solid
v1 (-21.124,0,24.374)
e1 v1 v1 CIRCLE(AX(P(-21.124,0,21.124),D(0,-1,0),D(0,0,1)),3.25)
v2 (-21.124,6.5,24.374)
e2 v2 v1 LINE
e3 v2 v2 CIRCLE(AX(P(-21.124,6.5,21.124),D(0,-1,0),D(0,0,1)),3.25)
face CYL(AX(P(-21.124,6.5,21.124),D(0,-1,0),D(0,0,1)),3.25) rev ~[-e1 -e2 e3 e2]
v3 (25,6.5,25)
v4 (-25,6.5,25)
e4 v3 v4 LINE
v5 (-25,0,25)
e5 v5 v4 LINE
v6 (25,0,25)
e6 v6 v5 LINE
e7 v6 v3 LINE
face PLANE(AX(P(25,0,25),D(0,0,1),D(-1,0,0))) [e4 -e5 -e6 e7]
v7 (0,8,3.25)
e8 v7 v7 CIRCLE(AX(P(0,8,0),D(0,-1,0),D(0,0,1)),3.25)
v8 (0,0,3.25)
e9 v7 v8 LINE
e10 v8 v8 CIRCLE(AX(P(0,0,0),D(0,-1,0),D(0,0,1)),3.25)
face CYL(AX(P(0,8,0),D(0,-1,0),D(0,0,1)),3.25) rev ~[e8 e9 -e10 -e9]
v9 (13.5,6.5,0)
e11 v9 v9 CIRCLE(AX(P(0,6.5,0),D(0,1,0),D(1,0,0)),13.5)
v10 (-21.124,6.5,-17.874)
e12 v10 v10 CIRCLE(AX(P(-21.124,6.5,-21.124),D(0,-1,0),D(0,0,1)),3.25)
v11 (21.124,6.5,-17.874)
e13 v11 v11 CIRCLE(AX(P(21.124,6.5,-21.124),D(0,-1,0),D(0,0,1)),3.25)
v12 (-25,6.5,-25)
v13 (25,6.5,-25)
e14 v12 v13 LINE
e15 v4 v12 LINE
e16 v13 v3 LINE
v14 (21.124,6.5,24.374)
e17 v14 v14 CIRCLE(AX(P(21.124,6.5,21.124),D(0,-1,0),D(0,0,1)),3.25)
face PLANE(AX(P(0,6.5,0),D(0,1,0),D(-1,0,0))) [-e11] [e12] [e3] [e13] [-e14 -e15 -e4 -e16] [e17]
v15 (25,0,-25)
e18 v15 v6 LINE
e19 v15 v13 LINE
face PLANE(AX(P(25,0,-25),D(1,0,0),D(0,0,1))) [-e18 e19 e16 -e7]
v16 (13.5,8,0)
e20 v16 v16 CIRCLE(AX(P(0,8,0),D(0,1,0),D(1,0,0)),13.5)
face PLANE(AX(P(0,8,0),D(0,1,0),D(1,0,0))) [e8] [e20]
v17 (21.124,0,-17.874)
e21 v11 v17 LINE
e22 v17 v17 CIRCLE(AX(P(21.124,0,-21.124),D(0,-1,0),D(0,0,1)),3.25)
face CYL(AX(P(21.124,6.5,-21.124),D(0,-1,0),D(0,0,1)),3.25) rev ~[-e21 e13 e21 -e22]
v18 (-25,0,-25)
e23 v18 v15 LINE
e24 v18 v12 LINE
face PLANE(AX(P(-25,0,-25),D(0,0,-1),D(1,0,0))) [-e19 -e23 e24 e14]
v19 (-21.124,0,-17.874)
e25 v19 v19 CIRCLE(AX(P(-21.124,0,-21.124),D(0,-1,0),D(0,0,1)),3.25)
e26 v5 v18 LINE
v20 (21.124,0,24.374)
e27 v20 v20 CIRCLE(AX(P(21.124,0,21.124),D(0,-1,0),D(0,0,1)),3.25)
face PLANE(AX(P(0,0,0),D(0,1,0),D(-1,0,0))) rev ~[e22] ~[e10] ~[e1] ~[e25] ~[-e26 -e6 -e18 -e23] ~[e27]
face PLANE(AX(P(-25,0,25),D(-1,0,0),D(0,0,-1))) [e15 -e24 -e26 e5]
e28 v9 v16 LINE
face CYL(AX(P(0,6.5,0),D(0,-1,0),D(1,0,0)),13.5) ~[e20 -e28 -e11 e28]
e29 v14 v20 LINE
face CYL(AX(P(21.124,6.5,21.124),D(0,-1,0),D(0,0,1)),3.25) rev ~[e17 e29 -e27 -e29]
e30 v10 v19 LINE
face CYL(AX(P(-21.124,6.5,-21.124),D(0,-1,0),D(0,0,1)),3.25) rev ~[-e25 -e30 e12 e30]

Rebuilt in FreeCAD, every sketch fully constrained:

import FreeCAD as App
import Part
import Sketcher
from FreeCAD import Vector

doc = App.newDocument("Part")
params = doc.addObject("Spreadsheet::Sheet", "Params")
for row, (alias, value) in enumerate([
    ("sketch1_width", "50 mm"),
    ("pad1_length", "6.5 mm"),
    ("sketch2_diameter", "27 mm"),
    ("pad2_length", "1.5 mm"),
    ("sketch3_diameter", "6.5 mm"),
    ("hole_diameter", "6.5 mm"),
    ("hole_depth", "8 mm"),
    ("sketch4_diameter", "6.5 mm"),
    ("hole2_diameter", "6.5 mm"),
    ("hole2_depth", "6.5 mm"),
], start=1):
    params.set(f"A{row}", alias)
    params.set(f"B{row}", "=" + value)
    params.setAlias(f"B{row}", alias)

body = doc.addObject("PartDesign::Body", "Body")

sketch1 = doc.addObject("Sketcher::SketchObject", "Sketch")
body.addObject(sketch1)
sketch1.AttachmentSupport = (doc.XZ_Plane, [""])
sketch1.MapMode = "FlatFace"
sketch1.addGeometry([
    Part.LineSegment(Vector(-25, 25, 0), Vector(25, 25, 0)),
    Part.LineSegment(Vector(25, 25, 0), Vector(25, -25, 0)),
    Part.LineSegment(Vector(25, -25, 0), Vector(-25, -25, 0)),
    Part.LineSegment(Vector(-25, -25, 0), Vector(-25, 25, 0)),
], False)
sketch1.addConstraint([
    Sketcher.Constraint("Coincident", 0, 2, 1, 1),
    Sketcher.Constraint("Coincident", 1, 2, 2, 1),
    Sketcher.Constraint("Coincident", 2, 2, 3, 1),
    Sketcher.Constraint("Coincident", 3, 2, 0, 1),
    Sketcher.Constraint("Horizontal", 0),
    Sketcher.Constraint("Vertical", 1),
    Sketcher.Constraint("Horizontal", 2),
    Sketcher.Constraint("Vertical", 3),
    Sketcher.Constraint("Symmetric", 0, 2, 2, 2, -1, 1),
    Sketcher.Constraint("Equal", 2, 1),
    Sketcher.Constraint("DistanceX", 0, 1, 0, 2, 50.0),
])
sketch1.setExpression("Constraints[10]", "Params.sketch1_width")
pad1 = doc.addObject("PartDesign::Pad", "Pad")
body.addObject(pad1)
pad1.Profile = sketch1
pad1.setExpression("Length", "Params.pad1_length")
pad1.Reversed = True

sketch2 = doc.addObject("Sketcher::SketchObject", "Sketch001")
body.addObject(sketch2)
sketch2.AttachmentSupport = (doc.XZ_Plane, [""])
sketch2.MapMode = "FlatFace"
sketch2.AttachmentOffset = App.Placement(Vector(0, 0, -6.5), App.Rotation())
sketch2.addGeometry(Part.Circle(Vector(0, 0, 0), Vector(0, 0, 1), 13.5), False)
sketch2.addConstraint([
    Sketcher.Constraint("Coincident", 0, 3, -1, 1),
    Sketcher.Constraint("Diameter", 0, 27.0),
])
sketch2.setExpression("Constraints[1]", "Params.sketch2_diameter")
pad2 = doc.addObject("PartDesign::Pad", "Pad001")
body.addObject(pad2)
pad2.Profile = sketch2
pad2.setExpression("Length", "Params.pad2_length")
pad2.Reversed = True

sketch3 = doc.addObject("Sketcher::SketchObject", "Sketch002")
body.addObject(sketch3)
sketch3.AttachmentSupport = (doc.XZ_Plane, [""])
sketch3.MapMode = "FlatFace"
sketch3.AttachmentOffset = App.Placement(Vector(0, 0, -8), App.Rotation())
sketch3.addGeometry(Part.Circle(Vector(0, 0, 0), Vector(0, 0, 1), 3.25), False)
sketch3.addConstraint([
    Sketcher.Constraint("Coincident", 0, 3, -1, 1),
    Sketcher.Constraint("Diameter", 0, 6.5),
])
sketch3.setExpression("Constraints[1]", "Params.sketch3_diameter")
doc.recompute()
hole = doc.addObject("PartDesign::Hole", "Hole")
body.addObject(hole)
hole.Profile = sketch3
hole.ThreadType = "None"
hole.setExpression("Diameter", "Params.hole_diameter")
hole.DepthType = "Dimension"
hole.setExpression("Depth", "Params.hole_depth")
hole.DrillPoint = "Flat"
hole.Reversed = True

sketch4 = doc.addObject("Sketcher::SketchObject", "Sketch003")
body.addObject(sketch4)
sketch4.AttachmentSupport = (doc.XZ_Plane, [""])
sketch4.MapMode = "FlatFace"
sketch4.AttachmentOffset = App.Placement(Vector(0, 0, -6.5), App.Rotation())
sketch4.addGeometry([
    Part.Circle(Vector(-21.124, -21.124, 0), Vector(0, 0, 1), 3.25),
    Part.Circle(Vector(-21.124, 21.124, 0), Vector(0, 0, 1), 3.25),
    Part.Circle(Vector(21.124, 21.124, 0), Vector(0, 0, 1), 3.25),
    Part.Circle(Vector(21.124, -21.124, 0), Vector(0, 0, 1), 3.25),
], False)
sketch4.addConstraint([
    Sketcher.Constraint("Equal", 0, 1),
    Sketcher.Constraint("Equal", 1, 2),
    Sketcher.Constraint("Equal", 2, 3),
    Sketcher.Constraint("Symmetric", 0, 3, 2, 3, -1, 1),
    Sketcher.Constraint("Symmetric", 1, 3, 3, 3, -1, 1),
    Sketcher.Constraint("Symmetric", 1, 3, 2, 3, -2),
    Sketcher.Constraint("Diameter", 0, 6.5),
    Sketcher.Constraint("DistanceX", 0, 3, -1, 1, 21.124),
    Sketcher.Constraint("DistanceY", 0, 3, -1, 1, 21.124),
])
sketch4.setExpression("Constraints[6]", "Params.sketch4_diameter")
doc.recompute()
hole2 = doc.addObject("PartDesign::Hole", "Hole001")
body.addObject(hole2)
hole2.Profile = sketch4
hole2.ThreadType = "None"
hole2.setExpression("Diameter", "Params.hole2_diameter")
hole2.DepthType = "Dimension"
hole2.setExpression("Depth", "Params.hole2_depth")
hole2.DrillPoint = "Flat"
hole2.Reversed = True

doc.recompute()
